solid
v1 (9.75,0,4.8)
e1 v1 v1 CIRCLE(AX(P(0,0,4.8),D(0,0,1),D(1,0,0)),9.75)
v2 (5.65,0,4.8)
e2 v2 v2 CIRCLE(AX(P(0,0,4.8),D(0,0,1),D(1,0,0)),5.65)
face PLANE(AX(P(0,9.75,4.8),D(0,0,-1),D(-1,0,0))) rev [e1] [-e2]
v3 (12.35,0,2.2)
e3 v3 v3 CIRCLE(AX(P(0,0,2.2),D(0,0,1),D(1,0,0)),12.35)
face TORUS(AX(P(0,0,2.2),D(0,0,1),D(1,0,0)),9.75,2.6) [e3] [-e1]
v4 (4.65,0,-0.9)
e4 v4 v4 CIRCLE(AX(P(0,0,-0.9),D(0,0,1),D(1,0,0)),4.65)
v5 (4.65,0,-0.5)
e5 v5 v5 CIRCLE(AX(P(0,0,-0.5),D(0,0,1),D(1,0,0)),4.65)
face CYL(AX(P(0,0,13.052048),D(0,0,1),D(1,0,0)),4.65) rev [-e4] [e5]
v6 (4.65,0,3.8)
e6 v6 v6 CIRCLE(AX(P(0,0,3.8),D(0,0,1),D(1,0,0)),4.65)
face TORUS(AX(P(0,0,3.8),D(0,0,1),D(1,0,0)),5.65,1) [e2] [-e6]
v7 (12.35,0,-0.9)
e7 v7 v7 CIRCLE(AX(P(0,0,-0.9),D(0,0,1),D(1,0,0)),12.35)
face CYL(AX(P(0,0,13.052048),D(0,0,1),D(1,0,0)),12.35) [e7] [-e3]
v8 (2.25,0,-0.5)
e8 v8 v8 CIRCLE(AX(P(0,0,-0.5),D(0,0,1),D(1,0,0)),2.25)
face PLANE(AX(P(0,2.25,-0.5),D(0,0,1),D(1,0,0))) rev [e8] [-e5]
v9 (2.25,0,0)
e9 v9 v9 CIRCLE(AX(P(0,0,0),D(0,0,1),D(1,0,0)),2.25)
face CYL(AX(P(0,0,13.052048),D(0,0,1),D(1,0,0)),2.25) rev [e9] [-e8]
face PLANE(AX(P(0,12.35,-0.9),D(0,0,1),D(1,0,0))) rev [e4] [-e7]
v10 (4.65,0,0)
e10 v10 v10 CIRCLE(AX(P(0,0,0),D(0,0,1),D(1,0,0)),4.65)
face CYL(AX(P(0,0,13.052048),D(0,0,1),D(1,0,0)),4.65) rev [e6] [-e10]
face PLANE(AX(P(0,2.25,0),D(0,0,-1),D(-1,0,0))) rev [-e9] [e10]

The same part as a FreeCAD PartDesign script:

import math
import FreeCAD as App
import Part
import Sketcher

V = App.Vector
Q = App.Units.Quantity

doc = App.newDocument("Part")
body = doc.addObject("PartDesign::Body", "Body")

# Sketch on YZ plane
sketch1 = body.newObject("Sketcher::SketchObject", "Sketch")
sketch1.AttachmentSupport = (doc.getObject("YZ_Plane"), [""])
sketch1.MapMode = "FlatFace"
sketch1.addGeometry([
    Part.LineSegment(V(2.25, 0, 0), V(2.25, -0.5, 0)),  # 0
    Part.LineSegment(V(2.25, -0.5, 0), V(4.65, -0.5, 0)),  # 1
    Part.LineSegment(V(4.65, -0.5, 0), V(4.65, -0.9, 0)),  # 2
    Part.LineSegment(V(4.65, -0.9, 0), V(12.35, -0.9, 0)),  # 3
    Part.LineSegment(V(12.35, -0.9, 0), V(12.35, 2.2, 0)),  # 4
    Part.ArcOfCircle(Part.Circle(V(9.75, 2.2, 0), V(0, 0, 1), 2.6), math.radians(0), math.radians(90)),  # 5
    Part.LineSegment(V(9.75, 4.8, 0), V(5.65, 4.8, 0)),  # 6
    Part.ArcOfCircle(Part.Circle(V(5.65, 3.8, 0), V(0, 0, 1), 1), math.radians(90), math.radians(180)),  # 7
    Part.LineSegment(V(4.65, 3.8, 0), V(4.65, 0, 0)),  # 8
    Part.LineSegment(V(4.65, 0, 0), V(2.25, 0, 0)),  # 9
], False)
sketch1.addConstraint([
    Sketcher.Constraint("Coincident", 0, 2, 1, 1),
    Sketcher.Constraint("Coincident", 1, 2, 2, 1),
    Sketcher.Constraint("Coincident", 2, 2, 3, 1),
    Sketcher.Constraint("Coincident", 3, 2, 4, 1),
    Sketcher.Constraint("Tangent", 4, 2, 5, 1),
    Sketcher.Constraint("Tangent", 5, 2, 6, 1),
    Sketcher.Constraint("Tangent", 6, 2, 7, 1),
    Sketcher.Constraint("Tangent", 7, 2, 8, 1),
    Sketcher.Constraint("Coincident", 8, 2, 9, 1),
    Sketcher.Constraint("Coincident", 9, 2, 0, 1),
    Sketcher.Constraint("Vertical", 0),
    Sketcher.Constraint("Horizontal", 1),
    Sketcher.Constraint("Vertical", 2),
    Sketcher.Constraint("Horizontal", 3),
    Sketcher.Constraint("Vertical", 4),
    Sketcher.Constraint("Horizontal", 6),
    Sketcher.Constraint("Vertical", 8),
    Sketcher.Constraint("Horizontal", 9),
    Sketcher.Constraint("PointOnObject", 8, 2, -1),
    Sketcher.Constraint("Vertical", 2, 2, 7, 2),
    Sketcher.Constraint("Radius", 7, Q("1 mm")),
    Sketcher.Constraint("Radius", 5, Q("2.6 mm")),
    Sketcher.Constraint("DistanceX", 1, 1, 1, 2, Q("2.4 mm")),
    Sketcher.Constraint("DistanceX", 3, 1, 3, 2, Q("7.7 mm")),
    Sketcher.Constraint("DistanceY", 0, 2, 0, 1, Q("0.5 mm")),
    Sketcher.Constraint("DistanceY", 2, 2, 2, 1, Q("0.4 mm")),
    Sketcher.Constraint("DistanceY", 4, 1, 4, 2, Q("3.1 mm")),
    Sketcher.Constraint("DistanceX", -1, 1, 5, 3, Q("9.75 mm")),
])
revolution = body.newObject("PartDesign::Revolution", "Revolution")
revolution.Profile = sketch1
revolution.ReferenceAxis = (sketch1, ["V_Axis"])
revolution.Angle = 360

doc.recompute()
